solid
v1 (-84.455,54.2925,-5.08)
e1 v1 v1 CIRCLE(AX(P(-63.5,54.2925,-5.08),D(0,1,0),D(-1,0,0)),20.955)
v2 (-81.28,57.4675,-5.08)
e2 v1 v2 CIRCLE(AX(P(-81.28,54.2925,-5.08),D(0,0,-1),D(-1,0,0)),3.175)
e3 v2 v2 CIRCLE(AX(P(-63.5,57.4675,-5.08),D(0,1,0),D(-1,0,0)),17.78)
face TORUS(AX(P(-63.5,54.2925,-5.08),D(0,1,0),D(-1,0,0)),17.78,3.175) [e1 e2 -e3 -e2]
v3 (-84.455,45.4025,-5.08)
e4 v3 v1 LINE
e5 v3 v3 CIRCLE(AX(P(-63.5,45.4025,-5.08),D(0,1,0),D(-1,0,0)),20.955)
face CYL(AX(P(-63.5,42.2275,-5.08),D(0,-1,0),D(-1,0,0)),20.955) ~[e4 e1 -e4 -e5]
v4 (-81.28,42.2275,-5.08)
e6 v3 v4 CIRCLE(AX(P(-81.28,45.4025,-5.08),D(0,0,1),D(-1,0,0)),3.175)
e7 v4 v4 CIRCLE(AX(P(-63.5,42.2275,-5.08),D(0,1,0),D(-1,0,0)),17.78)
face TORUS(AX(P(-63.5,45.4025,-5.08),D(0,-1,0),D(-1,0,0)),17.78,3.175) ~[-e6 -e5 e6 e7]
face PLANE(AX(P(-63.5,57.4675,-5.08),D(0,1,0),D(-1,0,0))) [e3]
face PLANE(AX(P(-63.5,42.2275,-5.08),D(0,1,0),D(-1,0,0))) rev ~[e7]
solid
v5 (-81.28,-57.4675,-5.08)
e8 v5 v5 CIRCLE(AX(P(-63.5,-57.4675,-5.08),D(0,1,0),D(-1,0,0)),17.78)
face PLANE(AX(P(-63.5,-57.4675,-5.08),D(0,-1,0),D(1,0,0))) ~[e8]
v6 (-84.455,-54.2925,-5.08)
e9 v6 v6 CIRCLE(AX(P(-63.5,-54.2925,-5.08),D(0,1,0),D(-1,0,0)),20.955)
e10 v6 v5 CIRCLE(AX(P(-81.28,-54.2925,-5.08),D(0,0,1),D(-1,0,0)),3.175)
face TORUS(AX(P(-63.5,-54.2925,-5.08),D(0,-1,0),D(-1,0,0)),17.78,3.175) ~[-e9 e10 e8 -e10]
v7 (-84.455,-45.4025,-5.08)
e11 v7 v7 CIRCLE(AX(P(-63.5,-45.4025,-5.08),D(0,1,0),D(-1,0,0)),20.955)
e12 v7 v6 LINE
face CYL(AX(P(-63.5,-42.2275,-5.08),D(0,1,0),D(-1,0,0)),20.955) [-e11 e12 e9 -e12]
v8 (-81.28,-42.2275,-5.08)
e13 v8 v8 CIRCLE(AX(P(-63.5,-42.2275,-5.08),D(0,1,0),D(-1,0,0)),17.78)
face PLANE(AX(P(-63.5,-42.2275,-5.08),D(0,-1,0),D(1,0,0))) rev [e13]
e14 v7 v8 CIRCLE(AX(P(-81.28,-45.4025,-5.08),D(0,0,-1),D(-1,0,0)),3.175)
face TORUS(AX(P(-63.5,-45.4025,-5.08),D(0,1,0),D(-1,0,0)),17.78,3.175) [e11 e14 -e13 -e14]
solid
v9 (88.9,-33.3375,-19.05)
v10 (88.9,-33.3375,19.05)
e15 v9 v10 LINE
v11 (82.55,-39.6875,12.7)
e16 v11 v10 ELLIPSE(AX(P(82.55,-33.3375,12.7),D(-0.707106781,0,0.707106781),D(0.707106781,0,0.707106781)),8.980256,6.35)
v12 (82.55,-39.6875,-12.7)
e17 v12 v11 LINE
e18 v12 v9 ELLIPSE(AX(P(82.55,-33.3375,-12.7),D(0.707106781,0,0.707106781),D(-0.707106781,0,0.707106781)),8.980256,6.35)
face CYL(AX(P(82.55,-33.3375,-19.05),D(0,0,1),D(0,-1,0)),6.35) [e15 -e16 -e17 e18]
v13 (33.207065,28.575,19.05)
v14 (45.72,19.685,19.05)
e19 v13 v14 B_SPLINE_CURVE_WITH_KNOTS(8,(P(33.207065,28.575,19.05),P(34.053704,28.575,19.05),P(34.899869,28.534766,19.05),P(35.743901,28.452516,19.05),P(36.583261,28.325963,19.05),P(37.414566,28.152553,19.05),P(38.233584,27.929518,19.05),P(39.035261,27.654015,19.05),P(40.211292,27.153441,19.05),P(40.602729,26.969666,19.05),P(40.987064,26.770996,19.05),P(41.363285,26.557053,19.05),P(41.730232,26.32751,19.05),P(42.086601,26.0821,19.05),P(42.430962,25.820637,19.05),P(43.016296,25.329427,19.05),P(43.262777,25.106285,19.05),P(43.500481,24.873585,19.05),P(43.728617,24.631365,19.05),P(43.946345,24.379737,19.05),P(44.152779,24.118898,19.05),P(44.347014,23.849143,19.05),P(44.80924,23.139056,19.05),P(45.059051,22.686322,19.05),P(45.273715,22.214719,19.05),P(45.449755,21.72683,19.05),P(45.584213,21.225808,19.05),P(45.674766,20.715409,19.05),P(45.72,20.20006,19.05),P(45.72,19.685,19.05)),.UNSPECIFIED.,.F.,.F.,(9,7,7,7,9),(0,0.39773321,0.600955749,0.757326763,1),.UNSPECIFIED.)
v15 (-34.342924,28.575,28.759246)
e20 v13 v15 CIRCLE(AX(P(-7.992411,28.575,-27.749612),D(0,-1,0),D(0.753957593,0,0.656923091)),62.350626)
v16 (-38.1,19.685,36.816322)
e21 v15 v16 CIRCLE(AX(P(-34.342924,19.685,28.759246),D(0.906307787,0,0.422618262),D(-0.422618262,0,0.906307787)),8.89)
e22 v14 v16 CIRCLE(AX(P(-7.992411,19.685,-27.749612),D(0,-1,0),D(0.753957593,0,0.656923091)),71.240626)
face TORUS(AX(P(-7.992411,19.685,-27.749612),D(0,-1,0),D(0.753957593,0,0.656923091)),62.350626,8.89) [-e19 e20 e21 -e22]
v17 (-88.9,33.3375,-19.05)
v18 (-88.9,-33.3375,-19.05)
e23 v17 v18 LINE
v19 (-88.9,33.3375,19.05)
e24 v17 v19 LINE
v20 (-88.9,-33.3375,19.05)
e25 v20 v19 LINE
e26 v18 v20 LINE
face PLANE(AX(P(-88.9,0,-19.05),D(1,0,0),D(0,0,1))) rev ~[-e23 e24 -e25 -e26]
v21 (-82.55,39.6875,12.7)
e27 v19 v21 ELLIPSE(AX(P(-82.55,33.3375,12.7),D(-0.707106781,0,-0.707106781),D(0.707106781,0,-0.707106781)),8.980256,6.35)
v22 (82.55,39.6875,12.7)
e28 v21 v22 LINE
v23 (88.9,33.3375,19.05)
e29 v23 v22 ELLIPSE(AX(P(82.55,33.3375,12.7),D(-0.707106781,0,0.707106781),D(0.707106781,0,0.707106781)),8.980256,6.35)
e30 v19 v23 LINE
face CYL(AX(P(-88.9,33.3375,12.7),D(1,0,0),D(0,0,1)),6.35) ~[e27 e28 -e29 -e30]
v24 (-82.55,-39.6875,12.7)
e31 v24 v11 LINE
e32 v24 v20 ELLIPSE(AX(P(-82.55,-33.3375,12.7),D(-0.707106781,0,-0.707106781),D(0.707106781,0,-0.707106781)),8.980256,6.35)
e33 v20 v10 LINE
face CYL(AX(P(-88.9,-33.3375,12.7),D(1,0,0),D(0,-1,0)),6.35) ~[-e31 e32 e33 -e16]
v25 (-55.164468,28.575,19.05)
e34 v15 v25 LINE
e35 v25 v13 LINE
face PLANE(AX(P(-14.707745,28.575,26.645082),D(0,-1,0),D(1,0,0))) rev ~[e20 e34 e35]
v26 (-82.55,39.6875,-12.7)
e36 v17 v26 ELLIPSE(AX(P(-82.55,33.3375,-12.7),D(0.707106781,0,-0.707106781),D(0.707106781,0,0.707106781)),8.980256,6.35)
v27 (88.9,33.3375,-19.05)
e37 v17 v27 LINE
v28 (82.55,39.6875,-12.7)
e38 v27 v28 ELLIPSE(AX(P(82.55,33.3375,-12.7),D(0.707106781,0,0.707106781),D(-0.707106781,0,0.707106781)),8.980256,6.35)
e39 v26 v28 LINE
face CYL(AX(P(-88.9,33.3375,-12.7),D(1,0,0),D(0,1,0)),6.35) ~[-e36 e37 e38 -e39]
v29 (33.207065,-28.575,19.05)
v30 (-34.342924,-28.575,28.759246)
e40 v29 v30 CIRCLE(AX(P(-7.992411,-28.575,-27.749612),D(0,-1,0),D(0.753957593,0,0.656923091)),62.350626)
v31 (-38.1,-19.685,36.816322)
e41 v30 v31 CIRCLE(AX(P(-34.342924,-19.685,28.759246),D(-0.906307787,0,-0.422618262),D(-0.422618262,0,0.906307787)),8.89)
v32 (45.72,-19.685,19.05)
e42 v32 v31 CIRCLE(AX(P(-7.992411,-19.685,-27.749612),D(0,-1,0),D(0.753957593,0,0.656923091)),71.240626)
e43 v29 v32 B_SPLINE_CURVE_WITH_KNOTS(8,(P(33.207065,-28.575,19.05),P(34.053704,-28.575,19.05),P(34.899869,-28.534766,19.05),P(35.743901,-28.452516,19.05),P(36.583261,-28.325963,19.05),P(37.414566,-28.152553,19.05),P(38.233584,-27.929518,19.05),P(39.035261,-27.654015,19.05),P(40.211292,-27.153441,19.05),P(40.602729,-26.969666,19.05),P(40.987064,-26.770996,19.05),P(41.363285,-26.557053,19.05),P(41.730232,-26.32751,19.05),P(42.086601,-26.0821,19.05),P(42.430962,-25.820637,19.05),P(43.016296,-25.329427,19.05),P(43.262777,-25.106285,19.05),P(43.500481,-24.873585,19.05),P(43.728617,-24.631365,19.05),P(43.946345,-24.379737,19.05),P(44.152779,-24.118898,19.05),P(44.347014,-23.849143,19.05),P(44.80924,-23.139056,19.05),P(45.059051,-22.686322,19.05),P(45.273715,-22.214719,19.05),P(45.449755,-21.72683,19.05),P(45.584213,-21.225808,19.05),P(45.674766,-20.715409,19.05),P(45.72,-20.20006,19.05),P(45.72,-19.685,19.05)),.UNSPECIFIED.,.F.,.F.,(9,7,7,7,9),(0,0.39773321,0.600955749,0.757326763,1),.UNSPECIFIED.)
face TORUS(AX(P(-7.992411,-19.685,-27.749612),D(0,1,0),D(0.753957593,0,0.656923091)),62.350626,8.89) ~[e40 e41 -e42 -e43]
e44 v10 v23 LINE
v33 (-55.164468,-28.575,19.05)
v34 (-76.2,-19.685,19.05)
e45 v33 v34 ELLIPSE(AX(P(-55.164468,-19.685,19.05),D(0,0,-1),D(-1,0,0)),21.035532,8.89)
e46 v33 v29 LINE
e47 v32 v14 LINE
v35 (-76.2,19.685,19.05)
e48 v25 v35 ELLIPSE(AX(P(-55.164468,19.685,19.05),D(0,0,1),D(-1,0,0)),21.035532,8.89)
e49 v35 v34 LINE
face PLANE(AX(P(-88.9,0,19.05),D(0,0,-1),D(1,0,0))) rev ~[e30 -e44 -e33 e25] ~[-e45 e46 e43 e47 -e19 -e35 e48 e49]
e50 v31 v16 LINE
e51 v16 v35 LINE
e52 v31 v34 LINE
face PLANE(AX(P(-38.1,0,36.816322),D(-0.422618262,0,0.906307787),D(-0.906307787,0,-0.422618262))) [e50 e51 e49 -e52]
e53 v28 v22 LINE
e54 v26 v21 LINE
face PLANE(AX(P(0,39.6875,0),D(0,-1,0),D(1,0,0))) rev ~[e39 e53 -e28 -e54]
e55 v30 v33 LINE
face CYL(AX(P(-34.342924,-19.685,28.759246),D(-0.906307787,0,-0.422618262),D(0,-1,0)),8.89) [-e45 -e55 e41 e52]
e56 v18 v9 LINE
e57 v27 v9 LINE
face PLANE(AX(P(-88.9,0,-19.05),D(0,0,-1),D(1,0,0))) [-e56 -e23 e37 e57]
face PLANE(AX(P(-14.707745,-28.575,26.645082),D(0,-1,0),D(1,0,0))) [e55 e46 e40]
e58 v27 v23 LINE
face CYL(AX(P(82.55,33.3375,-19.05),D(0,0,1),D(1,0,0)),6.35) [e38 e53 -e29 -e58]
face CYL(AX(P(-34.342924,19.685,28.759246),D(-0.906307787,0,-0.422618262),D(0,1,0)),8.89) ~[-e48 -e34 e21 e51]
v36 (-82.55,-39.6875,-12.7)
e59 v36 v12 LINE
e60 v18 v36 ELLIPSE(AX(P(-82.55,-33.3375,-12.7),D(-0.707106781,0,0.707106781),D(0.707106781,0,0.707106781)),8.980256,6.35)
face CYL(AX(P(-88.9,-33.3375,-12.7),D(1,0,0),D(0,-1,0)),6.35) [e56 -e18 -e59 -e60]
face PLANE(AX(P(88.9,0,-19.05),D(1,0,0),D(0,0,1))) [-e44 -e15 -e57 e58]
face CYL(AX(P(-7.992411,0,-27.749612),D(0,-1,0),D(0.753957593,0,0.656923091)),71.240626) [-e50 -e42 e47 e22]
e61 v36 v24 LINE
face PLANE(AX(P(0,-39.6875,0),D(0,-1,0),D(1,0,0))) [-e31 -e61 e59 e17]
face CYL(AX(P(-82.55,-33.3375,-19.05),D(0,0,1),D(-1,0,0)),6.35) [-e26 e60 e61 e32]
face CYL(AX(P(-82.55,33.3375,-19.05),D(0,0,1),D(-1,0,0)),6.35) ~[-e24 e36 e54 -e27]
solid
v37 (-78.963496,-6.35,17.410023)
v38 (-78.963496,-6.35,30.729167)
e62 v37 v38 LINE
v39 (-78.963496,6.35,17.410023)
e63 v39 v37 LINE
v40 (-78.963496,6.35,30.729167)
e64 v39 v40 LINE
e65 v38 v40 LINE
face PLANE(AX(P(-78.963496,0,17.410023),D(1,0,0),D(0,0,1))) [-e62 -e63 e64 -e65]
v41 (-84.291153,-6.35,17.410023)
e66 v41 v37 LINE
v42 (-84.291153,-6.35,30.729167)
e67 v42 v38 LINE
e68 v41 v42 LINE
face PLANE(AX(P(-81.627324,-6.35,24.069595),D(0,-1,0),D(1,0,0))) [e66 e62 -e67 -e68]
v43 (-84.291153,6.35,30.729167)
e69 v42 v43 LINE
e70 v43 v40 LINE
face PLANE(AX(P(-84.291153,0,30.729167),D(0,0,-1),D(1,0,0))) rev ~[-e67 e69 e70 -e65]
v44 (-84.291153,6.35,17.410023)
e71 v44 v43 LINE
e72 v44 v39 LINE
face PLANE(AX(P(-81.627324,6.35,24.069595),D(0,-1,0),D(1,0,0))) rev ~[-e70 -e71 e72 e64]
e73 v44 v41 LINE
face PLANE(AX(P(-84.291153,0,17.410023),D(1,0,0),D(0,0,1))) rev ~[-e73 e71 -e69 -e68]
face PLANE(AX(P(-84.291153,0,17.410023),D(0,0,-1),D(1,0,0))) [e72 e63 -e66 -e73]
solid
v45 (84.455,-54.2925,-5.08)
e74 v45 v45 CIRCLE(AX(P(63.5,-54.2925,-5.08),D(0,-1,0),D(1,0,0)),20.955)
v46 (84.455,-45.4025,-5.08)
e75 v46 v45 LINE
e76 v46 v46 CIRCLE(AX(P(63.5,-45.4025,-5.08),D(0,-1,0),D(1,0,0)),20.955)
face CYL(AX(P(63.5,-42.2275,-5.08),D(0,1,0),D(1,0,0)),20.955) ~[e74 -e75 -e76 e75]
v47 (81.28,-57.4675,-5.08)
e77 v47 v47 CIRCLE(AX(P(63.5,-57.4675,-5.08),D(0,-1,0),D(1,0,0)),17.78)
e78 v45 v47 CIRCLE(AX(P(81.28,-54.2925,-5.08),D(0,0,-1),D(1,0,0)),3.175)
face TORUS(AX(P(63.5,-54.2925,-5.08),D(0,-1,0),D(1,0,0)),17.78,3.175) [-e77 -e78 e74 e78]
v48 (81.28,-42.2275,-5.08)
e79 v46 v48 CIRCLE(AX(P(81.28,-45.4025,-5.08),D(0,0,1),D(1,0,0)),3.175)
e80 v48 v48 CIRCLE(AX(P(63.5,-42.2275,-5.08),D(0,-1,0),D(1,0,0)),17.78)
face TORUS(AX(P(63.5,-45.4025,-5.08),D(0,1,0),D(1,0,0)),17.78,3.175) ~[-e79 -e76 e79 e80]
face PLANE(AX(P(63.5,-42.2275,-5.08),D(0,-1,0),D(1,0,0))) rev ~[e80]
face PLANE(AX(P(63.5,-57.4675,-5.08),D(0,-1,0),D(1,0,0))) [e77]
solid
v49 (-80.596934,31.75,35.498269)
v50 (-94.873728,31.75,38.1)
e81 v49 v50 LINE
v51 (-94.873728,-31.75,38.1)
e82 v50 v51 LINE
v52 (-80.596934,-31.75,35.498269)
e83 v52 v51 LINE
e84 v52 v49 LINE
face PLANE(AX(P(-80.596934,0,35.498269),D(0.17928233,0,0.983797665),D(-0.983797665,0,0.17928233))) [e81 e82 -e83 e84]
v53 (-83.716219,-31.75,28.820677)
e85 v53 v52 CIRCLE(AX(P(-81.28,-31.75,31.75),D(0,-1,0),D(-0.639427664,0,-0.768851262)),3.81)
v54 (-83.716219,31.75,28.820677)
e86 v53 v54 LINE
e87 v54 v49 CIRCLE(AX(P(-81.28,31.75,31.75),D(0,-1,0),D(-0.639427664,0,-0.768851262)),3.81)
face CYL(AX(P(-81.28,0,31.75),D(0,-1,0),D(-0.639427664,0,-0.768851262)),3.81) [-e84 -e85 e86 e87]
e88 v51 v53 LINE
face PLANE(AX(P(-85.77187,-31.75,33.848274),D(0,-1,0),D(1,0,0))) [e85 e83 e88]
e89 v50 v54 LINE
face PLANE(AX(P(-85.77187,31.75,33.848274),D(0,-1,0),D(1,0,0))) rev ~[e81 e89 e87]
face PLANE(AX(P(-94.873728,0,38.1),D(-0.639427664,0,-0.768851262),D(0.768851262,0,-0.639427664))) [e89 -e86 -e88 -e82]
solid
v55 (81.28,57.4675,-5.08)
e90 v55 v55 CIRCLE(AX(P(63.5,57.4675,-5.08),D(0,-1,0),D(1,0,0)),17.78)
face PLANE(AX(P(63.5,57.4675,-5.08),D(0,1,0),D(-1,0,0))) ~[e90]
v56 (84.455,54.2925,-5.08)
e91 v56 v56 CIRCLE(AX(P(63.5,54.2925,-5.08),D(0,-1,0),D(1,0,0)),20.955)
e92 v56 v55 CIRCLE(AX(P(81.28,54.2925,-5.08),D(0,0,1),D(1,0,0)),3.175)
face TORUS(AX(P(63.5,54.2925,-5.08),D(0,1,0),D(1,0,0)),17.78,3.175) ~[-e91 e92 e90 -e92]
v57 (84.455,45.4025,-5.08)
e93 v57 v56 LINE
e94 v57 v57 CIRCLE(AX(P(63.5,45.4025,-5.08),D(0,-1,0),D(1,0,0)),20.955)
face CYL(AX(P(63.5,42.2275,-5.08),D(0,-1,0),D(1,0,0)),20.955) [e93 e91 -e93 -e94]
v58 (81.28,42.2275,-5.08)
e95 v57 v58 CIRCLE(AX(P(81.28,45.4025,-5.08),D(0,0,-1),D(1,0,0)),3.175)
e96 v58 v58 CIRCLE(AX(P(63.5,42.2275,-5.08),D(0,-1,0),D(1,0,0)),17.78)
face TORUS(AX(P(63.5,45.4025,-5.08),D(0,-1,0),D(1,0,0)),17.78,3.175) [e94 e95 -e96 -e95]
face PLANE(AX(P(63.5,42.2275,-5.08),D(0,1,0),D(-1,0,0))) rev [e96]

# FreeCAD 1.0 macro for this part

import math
import FreeCAD as App
import Part
import Sketcher
from FreeCAD import Vector
Q = App.Units.Quantity


def edges_at(feature, points):
    """Names of the edges that pass closest to the given points."""
    edges = feature.Shape.Edges
    near = lambda p: min(range(len(edges)), key=lambda i: edges[i].distToShape(Part.Vertex(*p))[0])
    return sorted({f"Edge{near(p) + 1}" for p in points})


def add_polygon(sketch, points):
    """Adds a closed chain of lines whose ends are joined by coincident constraints."""
    first, n = sketch.GeometryCount, len(points)
    for a, b in zip(points, points[1:] + points[:1]):
        sketch.addGeometry(Part.LineSegment(App.Vector(*a, 0), App.Vector(*b, 0)), False)
    for i in range(n):
        sketch.addConstraint(Sketcher.Constraint("Coincident", first + i, 2, first + (i + 1) % n, 1))

doc = App.newDocument("Part")
body = doc.addObject("PartDesign::Body", "Body")

sketch1 = body.newObject("Sketcher::SketchObject", "Sketch")
sketch1.AttachmentSupport = (doc.getObject("XZ_Plane"), [""])
sketch1.MapMode = "FlatFace"
add_polygon(sketch1, [(-89, 19), (-89, -19), (89, -19), (89, 19)])
sketch1.addConstraint(Sketcher.Constraint("Vertical", 0))
sketch1.addConstraint(Sketcher.Constraint("Horizontal", 1))
sketch1.addConstraint(Sketcher.Constraint("Vertical", 2))
sketch1.addConstraint(Sketcher.Constraint("Horizontal", 3))
sketch1.addConstraint(Sketcher.Constraint("Symmetric", 0, 2, 2, 2, -1, 1))
sketch1.addConstraint(Sketcher.Constraint("DistanceX", 1, 1, 1, 2, Q("7 in")))
sketch1.addConstraint(Sketcher.Constraint("DistanceY", 0, 2, 0, 1, Q("1.5 in")))
pad1 = body.newObject("PartDesign::Pad", "Pad")
pad1.Profile = sketch1
pad1.Length = Q("3.125 in")
pad1.Midplane = True
doc.recompute()

fillet = body.newObject("PartDesign::Fillet", "Fillet")
fillet.Base = (pad1, edges_at(pad1, [
    (88.9, -39.688, 0),
    (0, -39.688, 19.05),
    (-88.9, -39.688, 0),
    (0, -39.688, -19.05),
    (88.9, 39.688, 0),
    (0, 39.688, 19.05),
    (-88.9, 39.688, 0),
    (0, 39.688, -19.05),
]))
fillet.Radius = Q("0.25 in")

sketch2 = body.newObject("Sketcher::SketchObject", "Sketch001")
sketch2.AttachmentSupport = (doc.getObject("XZ_Plane"), [""])
sketch2.MapMode = "FlatFace"
sketch2.addGeometry(Part.LineSegment(Vector(-38, 37, 0), Vector(-76, 19, 0)), False)
sketch2.addGeometry(Part.LineSegment(Vector(-76, 19, 0), Vector(46, 19, 0)), False)
sketch2.addGeometry(Part.ArcOfCircle(Part.Circle(Vector(-8, -28, 0), Vector(0, 0, 1), 71), math.radians(41), math.radians(115)), False)
sketch2.addConstraint(Sketcher.Constraint("Coincident", 0, 2, 1, 1))
sketch2.addConstraint(Sketcher.Constraint("Coincident", 1, 2, 2, 1))
sketch2.addConstraint(Sketcher.Constraint("Tangent", 2, 2, 0, 1))
sketch2.addConstraint(Sketcher.Constraint("Horizontal", 1))
sketch2.addConstraint(Sketcher.Constraint("DistanceX", 1, 1, 1, 2, Q("4.8 in")))
sketch2.addConstraint(Sketcher.Constraint("DistanceX", 0, 2, -1, 1, Q("3 in")))
sketch2.addConstraint(Sketcher.Constraint("Angle", 0, Q("-155 deg")))
sketch2.addConstraint(Sketcher.Constraint("DistanceX", 2, 2, -1, 1, Q("1.5 in")))
sketch2.addConstraint(Sketcher.Constraint("DistanceY", -1, 1, 0, 2, Q("0.75 in")))
pad2 = body.newObject("PartDesign::Pad", "Pad001")
pad2.Profile = sketch2
pad2.Length = Q("2.25 in")
pad2.Midplane = True
doc.recompute()

fillet2 = body.newObject("PartDesign::Fillet", "Fillet001")
fillet2.Base = (pad2, edges_at(pad2, [
    (-57.15, 28.575, 27.933),
    (6.779, 28.575, 41.943),
    (-57.15, -28.575, 27.933),
    (6.779, -28.575, 41.943),
]))
fillet2.Radius = Q("0.35 in")
body2 = doc.addObject("PartDesign::Body", "Body001")

sketch3 = body2.newObject("Sketcher::SketchObject", "Sketch002")
sketch3.AttachmentSupport = (doc.getObject("XZ_Plane001"), [""])
sketch3.MapMode = "FlatFace"
sketch3.AttachmentOffset = App.Placement(Vector(0, 0, 1.6625 * 25.4), App.Rotation())
sketch3.addGeometry(Part.Circle(Vector(64, -5, 0), Vector(0, 0, 1), 21), False)
sketch3.addConstraint(Sketcher.Constraint("Diameter", 0, Q("1.65 in")))
sketch3.addConstraint(Sketcher.Constraint("DistanceX", -1, 1, 0, 3, Q("2.5 in")))
sketch3.addConstraint(Sketcher.Constraint("DistanceY", 0, 3, -1, 1, Q("0.2 in")))
pad3 = body2.newObject("PartDesign::Pad", "Pad002")
pad3.Profile = sketch3
pad3.Length = Q("0.6 in")
doc.recompute()

fillet3 = body2.newObject("PartDesign::Fillet", "Fillet002")
fillet3.Base = (pad3, ["Edge1"])
fillet3.UseAllEdges = True
fillet3.Radius = Q("0.125 in")
body3 = doc.addObject("PartDesign::Body", "Body002")
doc.recompute()

mirroring = doc.addObject("Part::Mirroring", "Mirroring")
mirroring.Source = body2
mirroring.Base = Vector(0, 0, 0)
mirroring.Normal = Vector(0, -1, 0)
body3.BaseFeature = mirroring
doc.recompute()
body4 = doc.addObject("PartDesign::Body", "Body003")
doc.recompute()

mirroring2 = doc.addObject("Part::Mirroring", "Mirroring001")
mirroring2.Source = body3
mirroring2.Base = Vector(0, 0, 0)
mirroring2.Normal = Vector(1, 0, 0)
body4.BaseFeature = mirroring2
doc.recompute()
body5 = doc.addObject("PartDesign::Body", "Body004")
doc.recompute()

mirroring3 = doc.addObject("Part::Mirroring", "Mirroring002")
mirroring3.Source = body2
mirroring3.Base = Vector(0, 0, 0)
mirroring3.Normal = Vector(1, 0, 0)
body5.BaseFeature = mirroring3
doc.recompute()
body6 = doc.addObject("PartDesign::Body", "Body005")

sketch4 = body6.newObject("Sketcher::SketchObject", "Sketch003")
sketch4.AttachmentSupport = (doc.getObject("XZ_Plane005"), [""])
sketch4.MapMode = "FlatFace"
sketch4.addGeometry(Part.LineSegment(Vector(-80.6, 35.5, 0), Vector(-94.9, 38.1, 0)), False)
sketch4.addGeometry(Part.LineSegment(Vector(-94.9, 38.1, 0), Vector(-83.7, 28.8, 0)), False)
sketch4.addGeometry(Part.ArcOfCircle(Part.Circle(Vector(-81.3, 31.8, 0), Vector(0, 0, 1), 3.8), math.radians(-130), math.radians(80)), False)
sketch4.addConstraint(Sketcher.Constraint("Coincident", 0, 2, 1, 1))
sketch4.addConstraint(Sketcher.Constraint("Tangent", 1, 2, 2, 1))
sketch4.addConstraint(Sketcher.Constraint("Tangent", 2, 2, 0, 1))
sketch4.addConstraint(Sketcher.Constraint("Radius", 2, Q("0.15 in")))
sketch4.addConstraint(Sketcher.Constraint("DistanceX", 2, 3, -1, 1, Q("3.2 in")))
sketch4.addConstraint(Sketcher.Constraint("DistanceY", -1, 1, 0, 2, Q("1.5 in")))
sketch4.addConstraint(Sketcher.Constraint("DistanceY", -1, 1, 2, 3, Q("1.25 in")))
sketch4.addConstraint(Sketcher.Constraint("Distance", 0, 14.51192))
pad4 = body6.newObject("PartDesign::Pad", "Pad003")
pad4.Profile = sketch4
pad4.Length = Q("2.5 in")
pad4.Midplane = True
body7 = doc.addObject("PartDesign::Body", "Body006")

sketch5 = body7.newObject("Sketcher::SketchObject", "Sketch004")
sketch5.AttachmentSupport = (doc.getObject("XZ_Plane006"), [""])
sketch5.MapMode = "FlatFace"
add_polygon(sketch5, [(-84, 31), (-84, 17), (-79, 17), (-79, 31)])
sketch5.addConstraint(Sketcher.Constraint("Vertical", 0))
sketch5.addConstraint(Sketcher.Constraint("Horizontal", 1))
sketch5.addConstraint(Sketcher.Constraint("Vertical", 2))
sketch5.addConstraint(Sketcher.Constraint("Horizontal", 3))
sketch5.addConstraint(Sketcher.Constraint("DistanceX", 1, 1, 1, 2, 5.327657))
sketch5.addConstraint(Sketcher.Constraint("DistanceY", 0, 2, 0, 1, 13.319144))
sketch5.addConstraint(Sketcher.Constraint("DistanceX", 0, 2, -1, 1, 84.291153))
sketch5.addConstraint(Sketcher.Constraint("DistanceY", -1, 1, 0, 2, 17.410023))
pad5 = body7.newObject("PartDesign::Pad", "Pad004")
pad5.Profile = sketch5
pad5.Length = Q("0.5 in")
pad5.Midplane = True
mirroring.Visibility = False
mirroring2.Visibility = False
mirroring3.Visibility = False

doc.recompute()
